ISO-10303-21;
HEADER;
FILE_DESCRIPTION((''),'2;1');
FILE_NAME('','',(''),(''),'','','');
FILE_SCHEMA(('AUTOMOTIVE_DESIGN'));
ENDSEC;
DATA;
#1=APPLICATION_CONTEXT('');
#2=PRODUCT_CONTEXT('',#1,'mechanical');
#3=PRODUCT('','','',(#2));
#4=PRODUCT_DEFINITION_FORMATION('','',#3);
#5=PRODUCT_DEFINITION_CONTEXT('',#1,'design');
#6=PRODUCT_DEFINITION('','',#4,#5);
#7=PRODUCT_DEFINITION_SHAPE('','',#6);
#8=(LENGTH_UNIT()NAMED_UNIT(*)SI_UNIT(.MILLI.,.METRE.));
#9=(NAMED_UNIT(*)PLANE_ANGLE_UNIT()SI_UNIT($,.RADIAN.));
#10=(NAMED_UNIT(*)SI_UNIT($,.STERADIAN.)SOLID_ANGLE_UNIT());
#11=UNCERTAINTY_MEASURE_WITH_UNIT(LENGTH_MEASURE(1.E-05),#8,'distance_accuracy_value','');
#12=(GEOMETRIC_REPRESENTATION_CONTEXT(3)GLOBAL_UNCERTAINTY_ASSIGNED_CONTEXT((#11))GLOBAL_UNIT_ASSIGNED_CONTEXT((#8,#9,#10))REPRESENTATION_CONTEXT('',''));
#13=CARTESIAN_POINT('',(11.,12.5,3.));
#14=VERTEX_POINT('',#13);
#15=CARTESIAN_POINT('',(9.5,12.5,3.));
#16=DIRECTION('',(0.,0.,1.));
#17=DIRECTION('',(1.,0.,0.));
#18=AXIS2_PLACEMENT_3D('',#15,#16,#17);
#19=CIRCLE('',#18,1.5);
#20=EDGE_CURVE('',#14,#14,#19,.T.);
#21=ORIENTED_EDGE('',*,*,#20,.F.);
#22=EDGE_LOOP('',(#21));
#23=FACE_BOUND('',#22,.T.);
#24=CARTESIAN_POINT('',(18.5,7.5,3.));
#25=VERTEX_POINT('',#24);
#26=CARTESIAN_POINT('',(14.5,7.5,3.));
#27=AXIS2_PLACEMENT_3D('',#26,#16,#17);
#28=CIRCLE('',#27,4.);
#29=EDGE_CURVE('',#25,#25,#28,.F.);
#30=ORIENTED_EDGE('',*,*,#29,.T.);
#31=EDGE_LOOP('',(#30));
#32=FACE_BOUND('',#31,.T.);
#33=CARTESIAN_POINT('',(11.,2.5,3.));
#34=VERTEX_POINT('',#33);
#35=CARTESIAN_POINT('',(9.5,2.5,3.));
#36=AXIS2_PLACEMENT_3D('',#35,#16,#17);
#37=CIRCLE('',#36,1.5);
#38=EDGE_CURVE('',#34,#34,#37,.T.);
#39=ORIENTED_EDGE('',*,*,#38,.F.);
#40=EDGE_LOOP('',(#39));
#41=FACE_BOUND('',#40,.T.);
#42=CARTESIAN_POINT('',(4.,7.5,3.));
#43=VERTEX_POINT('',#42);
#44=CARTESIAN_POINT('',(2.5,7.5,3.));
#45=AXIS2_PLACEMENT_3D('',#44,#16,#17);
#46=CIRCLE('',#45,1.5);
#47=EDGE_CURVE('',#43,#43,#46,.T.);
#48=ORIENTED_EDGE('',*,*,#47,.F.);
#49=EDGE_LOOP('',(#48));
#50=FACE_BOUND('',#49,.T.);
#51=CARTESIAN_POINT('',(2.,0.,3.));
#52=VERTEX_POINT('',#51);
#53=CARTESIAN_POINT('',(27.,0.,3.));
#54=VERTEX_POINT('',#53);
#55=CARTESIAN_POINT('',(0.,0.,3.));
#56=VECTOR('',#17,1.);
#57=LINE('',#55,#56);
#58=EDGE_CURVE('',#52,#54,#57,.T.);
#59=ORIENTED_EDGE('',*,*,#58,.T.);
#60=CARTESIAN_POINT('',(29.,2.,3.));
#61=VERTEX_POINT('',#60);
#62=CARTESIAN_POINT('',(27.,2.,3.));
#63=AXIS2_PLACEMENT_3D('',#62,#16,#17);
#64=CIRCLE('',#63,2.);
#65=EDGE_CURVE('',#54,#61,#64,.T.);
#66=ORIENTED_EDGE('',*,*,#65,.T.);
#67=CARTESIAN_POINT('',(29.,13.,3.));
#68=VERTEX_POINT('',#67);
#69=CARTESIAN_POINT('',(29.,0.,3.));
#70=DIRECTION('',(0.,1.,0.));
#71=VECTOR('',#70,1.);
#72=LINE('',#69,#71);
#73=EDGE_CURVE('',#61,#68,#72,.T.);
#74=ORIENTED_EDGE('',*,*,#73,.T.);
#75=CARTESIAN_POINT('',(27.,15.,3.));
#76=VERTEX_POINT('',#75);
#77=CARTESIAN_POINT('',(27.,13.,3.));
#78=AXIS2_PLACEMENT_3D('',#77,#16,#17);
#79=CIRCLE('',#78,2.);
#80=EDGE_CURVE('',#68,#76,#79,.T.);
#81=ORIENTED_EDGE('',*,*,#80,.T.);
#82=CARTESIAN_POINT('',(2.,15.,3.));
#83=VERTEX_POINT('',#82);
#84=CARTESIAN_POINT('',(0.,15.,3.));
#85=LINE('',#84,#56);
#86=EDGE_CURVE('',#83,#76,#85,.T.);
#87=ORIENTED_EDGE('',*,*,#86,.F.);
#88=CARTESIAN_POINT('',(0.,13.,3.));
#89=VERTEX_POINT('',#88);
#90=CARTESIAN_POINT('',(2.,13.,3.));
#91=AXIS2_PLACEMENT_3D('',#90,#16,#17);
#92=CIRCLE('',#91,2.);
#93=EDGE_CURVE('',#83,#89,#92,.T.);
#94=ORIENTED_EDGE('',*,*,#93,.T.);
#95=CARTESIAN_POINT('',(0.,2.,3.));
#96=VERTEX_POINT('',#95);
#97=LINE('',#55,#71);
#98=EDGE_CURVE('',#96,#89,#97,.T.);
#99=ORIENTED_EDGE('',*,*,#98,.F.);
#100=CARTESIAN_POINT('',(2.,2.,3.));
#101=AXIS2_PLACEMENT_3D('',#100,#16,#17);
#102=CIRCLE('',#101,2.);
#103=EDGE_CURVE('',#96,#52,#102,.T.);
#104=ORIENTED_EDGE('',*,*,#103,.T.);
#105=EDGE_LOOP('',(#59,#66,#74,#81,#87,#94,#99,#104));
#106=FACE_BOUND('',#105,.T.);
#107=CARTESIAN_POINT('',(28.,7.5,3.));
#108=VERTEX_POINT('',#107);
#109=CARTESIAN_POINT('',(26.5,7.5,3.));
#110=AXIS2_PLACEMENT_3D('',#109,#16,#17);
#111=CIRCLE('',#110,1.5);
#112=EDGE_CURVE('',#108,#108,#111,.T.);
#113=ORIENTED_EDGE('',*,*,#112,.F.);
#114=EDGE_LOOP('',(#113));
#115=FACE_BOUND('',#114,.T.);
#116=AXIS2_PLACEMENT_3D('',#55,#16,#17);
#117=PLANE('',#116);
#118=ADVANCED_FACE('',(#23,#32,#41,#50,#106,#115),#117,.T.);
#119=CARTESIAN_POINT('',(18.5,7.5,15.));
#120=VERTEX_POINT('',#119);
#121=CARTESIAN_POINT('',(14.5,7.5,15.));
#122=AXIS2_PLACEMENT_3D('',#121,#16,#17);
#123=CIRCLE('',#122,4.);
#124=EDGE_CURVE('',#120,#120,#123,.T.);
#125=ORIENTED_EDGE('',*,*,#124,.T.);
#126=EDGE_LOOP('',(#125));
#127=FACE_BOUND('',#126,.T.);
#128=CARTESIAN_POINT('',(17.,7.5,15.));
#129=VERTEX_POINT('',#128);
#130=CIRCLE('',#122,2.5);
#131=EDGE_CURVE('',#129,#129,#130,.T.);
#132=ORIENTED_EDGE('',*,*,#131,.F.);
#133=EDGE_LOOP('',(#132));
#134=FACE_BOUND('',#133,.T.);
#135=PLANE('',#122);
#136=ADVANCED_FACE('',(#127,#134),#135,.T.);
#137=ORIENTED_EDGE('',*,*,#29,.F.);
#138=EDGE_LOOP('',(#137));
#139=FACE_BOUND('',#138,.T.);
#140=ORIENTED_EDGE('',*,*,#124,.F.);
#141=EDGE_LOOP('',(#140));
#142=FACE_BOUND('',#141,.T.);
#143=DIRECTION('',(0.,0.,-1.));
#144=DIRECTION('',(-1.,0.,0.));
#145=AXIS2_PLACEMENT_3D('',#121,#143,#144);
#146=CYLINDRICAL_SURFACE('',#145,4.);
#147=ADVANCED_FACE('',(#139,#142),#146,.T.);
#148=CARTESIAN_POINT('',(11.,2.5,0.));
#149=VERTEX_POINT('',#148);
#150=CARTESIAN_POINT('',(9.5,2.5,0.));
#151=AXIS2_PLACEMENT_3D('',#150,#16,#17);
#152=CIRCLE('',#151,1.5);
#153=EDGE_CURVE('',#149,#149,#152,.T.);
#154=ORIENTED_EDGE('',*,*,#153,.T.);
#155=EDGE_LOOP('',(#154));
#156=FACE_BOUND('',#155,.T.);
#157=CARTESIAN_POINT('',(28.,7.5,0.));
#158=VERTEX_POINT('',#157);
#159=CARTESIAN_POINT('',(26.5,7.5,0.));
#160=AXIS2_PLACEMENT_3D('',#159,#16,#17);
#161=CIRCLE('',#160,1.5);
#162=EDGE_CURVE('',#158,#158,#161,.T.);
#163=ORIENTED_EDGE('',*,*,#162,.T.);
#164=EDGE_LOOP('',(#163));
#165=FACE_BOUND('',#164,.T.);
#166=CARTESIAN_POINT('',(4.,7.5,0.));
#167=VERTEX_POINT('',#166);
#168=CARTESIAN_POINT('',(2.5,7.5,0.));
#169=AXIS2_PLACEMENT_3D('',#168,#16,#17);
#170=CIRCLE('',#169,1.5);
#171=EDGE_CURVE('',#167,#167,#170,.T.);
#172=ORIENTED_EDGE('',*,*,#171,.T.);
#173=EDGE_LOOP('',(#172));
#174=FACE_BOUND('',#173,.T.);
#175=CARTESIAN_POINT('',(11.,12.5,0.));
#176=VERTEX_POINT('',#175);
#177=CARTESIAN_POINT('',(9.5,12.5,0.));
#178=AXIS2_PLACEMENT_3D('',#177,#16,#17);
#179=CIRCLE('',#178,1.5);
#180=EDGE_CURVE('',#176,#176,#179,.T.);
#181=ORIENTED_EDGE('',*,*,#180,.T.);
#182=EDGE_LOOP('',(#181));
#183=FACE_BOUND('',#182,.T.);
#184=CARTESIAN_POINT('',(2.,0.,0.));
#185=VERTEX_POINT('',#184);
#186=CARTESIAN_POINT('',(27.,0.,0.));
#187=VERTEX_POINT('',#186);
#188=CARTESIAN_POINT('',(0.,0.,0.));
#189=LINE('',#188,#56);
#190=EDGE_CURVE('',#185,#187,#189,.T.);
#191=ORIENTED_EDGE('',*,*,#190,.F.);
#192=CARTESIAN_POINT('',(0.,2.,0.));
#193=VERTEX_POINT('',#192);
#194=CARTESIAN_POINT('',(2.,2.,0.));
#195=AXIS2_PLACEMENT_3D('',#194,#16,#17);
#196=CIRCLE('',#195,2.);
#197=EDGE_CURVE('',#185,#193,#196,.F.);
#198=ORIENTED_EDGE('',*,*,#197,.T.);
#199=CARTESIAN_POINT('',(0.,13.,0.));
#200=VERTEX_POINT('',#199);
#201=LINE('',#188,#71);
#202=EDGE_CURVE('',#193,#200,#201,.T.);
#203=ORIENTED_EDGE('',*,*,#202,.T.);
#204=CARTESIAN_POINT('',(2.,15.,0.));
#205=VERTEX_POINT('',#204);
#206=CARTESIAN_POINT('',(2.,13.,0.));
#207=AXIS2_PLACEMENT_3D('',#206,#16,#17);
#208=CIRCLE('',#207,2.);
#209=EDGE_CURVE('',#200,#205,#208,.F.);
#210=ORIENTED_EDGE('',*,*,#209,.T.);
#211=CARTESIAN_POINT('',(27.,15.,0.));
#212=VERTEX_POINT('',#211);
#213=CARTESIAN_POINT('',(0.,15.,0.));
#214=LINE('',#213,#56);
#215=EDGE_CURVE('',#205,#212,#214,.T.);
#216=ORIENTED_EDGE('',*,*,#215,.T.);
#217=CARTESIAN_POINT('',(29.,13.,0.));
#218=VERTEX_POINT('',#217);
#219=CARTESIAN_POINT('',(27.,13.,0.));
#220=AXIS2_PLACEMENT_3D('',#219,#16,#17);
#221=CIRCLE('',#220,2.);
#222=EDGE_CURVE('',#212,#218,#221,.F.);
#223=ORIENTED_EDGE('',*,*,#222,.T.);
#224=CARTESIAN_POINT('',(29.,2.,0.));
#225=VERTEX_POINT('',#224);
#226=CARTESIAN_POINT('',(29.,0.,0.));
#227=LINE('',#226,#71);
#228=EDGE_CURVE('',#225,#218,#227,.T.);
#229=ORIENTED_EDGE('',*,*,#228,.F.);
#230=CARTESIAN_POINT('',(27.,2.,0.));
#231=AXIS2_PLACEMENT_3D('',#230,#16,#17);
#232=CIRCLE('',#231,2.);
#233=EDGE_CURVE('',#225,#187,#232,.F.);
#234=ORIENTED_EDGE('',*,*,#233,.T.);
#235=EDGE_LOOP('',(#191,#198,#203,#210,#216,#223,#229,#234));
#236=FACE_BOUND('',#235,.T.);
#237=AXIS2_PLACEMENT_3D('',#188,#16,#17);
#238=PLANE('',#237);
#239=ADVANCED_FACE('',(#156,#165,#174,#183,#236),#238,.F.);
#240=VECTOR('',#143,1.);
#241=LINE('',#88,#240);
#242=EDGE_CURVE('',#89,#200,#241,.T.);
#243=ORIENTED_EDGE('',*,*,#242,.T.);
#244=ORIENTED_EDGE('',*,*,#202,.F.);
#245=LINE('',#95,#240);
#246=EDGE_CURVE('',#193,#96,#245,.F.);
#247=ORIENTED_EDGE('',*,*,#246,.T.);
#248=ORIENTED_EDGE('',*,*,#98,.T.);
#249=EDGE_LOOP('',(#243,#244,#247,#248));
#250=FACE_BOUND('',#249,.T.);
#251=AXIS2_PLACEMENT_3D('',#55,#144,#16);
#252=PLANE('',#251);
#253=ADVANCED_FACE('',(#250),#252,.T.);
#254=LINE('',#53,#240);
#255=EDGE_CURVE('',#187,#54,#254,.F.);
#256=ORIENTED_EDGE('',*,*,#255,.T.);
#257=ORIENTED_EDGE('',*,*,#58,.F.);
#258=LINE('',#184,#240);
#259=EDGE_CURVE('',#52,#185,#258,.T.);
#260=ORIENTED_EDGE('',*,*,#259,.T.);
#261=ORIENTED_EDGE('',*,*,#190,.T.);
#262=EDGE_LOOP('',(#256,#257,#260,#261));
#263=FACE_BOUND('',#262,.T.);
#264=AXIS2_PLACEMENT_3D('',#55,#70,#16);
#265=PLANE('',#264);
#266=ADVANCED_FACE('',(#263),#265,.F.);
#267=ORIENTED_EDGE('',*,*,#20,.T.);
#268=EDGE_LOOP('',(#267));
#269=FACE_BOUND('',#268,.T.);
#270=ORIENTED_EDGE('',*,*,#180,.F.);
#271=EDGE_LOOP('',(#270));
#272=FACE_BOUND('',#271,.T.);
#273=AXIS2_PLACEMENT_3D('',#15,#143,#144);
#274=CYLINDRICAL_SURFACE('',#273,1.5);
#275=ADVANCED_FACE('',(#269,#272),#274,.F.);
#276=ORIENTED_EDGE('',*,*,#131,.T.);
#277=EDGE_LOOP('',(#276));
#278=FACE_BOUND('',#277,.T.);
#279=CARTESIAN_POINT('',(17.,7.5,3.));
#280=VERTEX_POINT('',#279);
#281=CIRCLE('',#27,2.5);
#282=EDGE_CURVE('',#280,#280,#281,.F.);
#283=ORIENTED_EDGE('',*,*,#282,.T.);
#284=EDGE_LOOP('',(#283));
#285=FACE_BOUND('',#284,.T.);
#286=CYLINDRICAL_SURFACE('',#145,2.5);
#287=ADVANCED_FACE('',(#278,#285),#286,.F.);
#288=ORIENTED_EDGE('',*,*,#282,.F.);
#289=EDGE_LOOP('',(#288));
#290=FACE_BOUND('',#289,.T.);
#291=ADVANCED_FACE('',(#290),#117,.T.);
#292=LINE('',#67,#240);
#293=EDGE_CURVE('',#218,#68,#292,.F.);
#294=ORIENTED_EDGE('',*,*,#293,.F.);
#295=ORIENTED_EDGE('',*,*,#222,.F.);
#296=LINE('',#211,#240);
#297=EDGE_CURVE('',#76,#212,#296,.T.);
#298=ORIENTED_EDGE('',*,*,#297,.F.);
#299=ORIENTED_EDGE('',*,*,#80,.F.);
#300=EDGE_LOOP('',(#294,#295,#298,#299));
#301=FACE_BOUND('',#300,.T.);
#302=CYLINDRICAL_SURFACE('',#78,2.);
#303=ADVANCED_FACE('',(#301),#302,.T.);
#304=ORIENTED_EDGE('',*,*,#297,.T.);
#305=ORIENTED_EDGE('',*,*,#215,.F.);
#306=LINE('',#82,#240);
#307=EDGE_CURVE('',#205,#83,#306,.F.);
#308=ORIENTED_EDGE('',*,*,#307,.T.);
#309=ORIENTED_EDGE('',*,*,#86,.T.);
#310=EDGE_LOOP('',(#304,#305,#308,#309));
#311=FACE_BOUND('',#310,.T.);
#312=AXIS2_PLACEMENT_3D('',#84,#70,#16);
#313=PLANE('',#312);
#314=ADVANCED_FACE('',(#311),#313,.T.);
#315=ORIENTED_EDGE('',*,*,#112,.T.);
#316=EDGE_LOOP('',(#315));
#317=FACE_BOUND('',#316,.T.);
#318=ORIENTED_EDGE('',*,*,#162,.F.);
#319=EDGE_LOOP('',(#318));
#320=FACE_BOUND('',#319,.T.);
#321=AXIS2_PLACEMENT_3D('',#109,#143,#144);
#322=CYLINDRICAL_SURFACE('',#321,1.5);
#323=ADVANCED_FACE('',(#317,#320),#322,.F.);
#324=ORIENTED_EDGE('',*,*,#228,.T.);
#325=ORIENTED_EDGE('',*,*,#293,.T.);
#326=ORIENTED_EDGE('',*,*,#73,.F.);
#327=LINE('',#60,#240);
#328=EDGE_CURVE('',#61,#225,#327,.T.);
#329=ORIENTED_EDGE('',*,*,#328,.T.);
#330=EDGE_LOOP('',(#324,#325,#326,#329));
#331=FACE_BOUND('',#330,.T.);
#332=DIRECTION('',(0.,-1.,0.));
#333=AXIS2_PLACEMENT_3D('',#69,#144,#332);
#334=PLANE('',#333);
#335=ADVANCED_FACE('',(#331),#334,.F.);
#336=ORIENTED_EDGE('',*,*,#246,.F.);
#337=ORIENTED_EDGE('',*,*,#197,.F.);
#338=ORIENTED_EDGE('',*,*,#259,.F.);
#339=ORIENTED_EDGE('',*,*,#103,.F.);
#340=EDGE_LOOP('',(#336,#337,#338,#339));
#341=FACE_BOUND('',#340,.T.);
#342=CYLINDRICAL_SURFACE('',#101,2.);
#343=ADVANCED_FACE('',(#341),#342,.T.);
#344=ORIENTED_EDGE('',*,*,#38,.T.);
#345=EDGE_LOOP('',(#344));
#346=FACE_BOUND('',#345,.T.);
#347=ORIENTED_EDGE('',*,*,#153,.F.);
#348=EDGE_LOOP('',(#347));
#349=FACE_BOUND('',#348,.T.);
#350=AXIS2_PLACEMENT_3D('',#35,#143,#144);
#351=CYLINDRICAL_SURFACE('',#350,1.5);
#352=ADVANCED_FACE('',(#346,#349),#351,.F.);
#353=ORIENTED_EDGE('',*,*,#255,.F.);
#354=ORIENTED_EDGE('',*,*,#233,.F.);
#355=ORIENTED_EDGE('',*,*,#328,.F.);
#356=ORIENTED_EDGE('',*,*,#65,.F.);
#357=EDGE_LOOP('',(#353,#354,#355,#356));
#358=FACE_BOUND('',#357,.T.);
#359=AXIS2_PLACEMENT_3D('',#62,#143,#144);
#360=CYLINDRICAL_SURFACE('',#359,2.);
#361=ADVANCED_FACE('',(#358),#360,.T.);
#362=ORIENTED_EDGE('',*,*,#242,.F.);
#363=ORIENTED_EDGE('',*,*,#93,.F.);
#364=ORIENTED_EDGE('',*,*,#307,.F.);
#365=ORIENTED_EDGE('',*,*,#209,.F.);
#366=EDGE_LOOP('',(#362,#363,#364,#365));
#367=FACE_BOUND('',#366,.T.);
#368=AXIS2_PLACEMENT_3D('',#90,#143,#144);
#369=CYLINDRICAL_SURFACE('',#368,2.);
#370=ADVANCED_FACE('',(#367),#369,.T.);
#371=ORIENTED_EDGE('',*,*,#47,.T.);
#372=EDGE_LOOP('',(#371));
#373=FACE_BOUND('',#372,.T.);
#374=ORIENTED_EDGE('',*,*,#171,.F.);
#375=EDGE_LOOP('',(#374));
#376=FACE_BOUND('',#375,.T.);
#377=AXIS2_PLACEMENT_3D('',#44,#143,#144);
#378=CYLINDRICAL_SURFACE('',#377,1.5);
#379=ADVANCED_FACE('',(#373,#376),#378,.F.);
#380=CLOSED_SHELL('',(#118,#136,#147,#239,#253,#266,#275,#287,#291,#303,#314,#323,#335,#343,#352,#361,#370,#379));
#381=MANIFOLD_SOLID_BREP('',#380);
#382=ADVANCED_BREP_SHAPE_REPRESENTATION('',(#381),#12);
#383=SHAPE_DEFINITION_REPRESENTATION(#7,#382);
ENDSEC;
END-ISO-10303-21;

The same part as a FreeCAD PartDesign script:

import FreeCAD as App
import Part
import Sketcher
Q = App.Units.Quantity


def edges_at(feature, points):
    """Names of the edges that pass closest to the given points."""
    edges = feature.Shape.Edges
    near = lambda p: min(range(len(edges)), key=lambda i: edges[i].distToShape(Part.Vertex(*p))[0])
    return sorted({f"Edge{near(p) + 1}" for p in points})


def add_polygon(sketch, points):
    """Adds a closed chain of lines whose ends are joined by coincident constraints."""
    first, n = sketch.GeometryCount, len(points)
    for a, b in zip(points, points[1:] + points[:1]):
        sketch.addGeometry(Part.LineSegment(App.Vector(*a, 0), App.Vector(*b, 0)), False)
    for i in range(n):
        sketch.addConstraint(Sketcher.Constraint("Coincident", first + i, 2, first + (i + 1) % n, 1))

doc = App.newDocument("Part")
body = doc.addObject("PartDesign::Body", "Body")

sketch1 = doc.addObject("Sketcher::SketchObject", "Sketch")
body.addObject(sketch1)
sketch1.AttachmentSupport = (doc.XY_Plane, [""])
sketch1.MapMode = "FlatFace"
add_polygon(sketch1, [(0, 15), (0, 0), (29, 0), (29, 15)])
sketch1.addGeometry(Part.Circle(App.Vector(9.5, 2.5, 0), App.Vector(0, 0, 1), 1.5), False)
sketch1.addGeometry(Part.Circle(App.Vector(2.5, 7.5, 0), App.Vector(0, 0, 1), 1.5), False)
sketch1.addGeometry(Part.Circle(App.Vector(9.5, 12.5, 0), App.Vector(0, 0, 1), 1.5), False)
sketch1.addGeometry(Part.Circle(App.Vector(26.5, 7.5, 0), App.Vector(0, 0, 1), 1.5), False)
sketch1.addConstraint([
    Sketcher.Constraint("Vertical", 0),
    Sketcher.Constraint("Horizontal", 1),
    Sketcher.Constraint("Vertical", 2),
    Sketcher.Constraint("Horizontal", 3),
    Sketcher.Constraint("Coincident", 0, 2, -1, 1),
    Sketcher.Constraint("Equal", 4, 5),
    Sketcher.Constraint("Equal", 5, 6),
    Sketcher.Constraint("Equal", 6, 7),
    Sketcher.Constraint("Horizontal", 5, 3, 7, 3),
    Sketcher.Constraint("Vertical", 4, 3, 6, 3),
    Sketcher.Constraint("Diameter", 4, Q("3 mm")),
    Sketcher.Constraint("DistanceX", 1, 1, 1, 2, Q("29 mm")),
    Sketcher.Constraint("DistanceY", 0, 2, 0, 1, Q("15 mm")),
    Sketcher.Constraint("DistanceX", 5, 3, 4, 3, Q("7 mm")),
    Sketcher.Constraint("DistanceY", 4, 3, 5, 3, Q("5 mm")),
    Sketcher.Constraint("DistanceY", 5, 3, 6, 3, Q("5 mm")),
    Sketcher.Constraint("DistanceX", 4, 3, 7, 3, Q("17 mm")),
    Sketcher.Constraint("DistanceX", -1, 1, 4, 3, Q("9.5 mm")),
    Sketcher.Constraint("DistanceY", -1, 1, 4, 3, Q("2.5 mm")),
])
pad1 = doc.addObject("PartDesign::Pad", "Pad")
body.addObject(pad1)
pad1.Profile = sketch1
pad1.Length = 3

sketch2 = doc.addObject("Sketcher::SketchObject", "Sketch001")
body.addObject(sketch2)
sketch2.AttachmentSupport = (doc.XY_Plane, [""])
sketch2.MapMode = "FlatFace"
sketch2.addGeometry([
    Part.Circle(App.Vector(14.5, 7.5, 0), App.Vector(0, 0, 1), 4),
    Part.Circle(App.Vector(14.5, 7.5, 0), App.Vector(0, 0, 1), 2.5),
], False)
sketch2.addConstraint([
    Sketcher.Constraint("Coincident", 1, 3, 0, 3),
    Sketcher.Constraint("Diameter", 0, Q("8 mm")),
    Sketcher.Constraint("Diameter", 1, Q("5 mm")),
    Sketcher.Constraint("DistanceX", -1, 1, 0, 3, Q("14.5 mm")),
    Sketcher.Constraint("DistanceY", -1, 1, 0, 3, Q("7.5 mm")),
])
pad2 = doc.addObject("PartDesign::Pad", "Pad001")
body.addObject(pad2)
pad2.Profile = sketch2
pad2.Length = 15
doc.recompute()

fillet = doc.addObject("PartDesign::Fillet", "Fillet")
body.addObject(fillet)
fillet.Base = (pad2, edges_at(pad2, [
    (0, 0, 1.5),
    (0, 15, 1.5),
    (29, 15, 1.5),
    (29, 0, 1.5),
]))
fillet.Radius = 2

doc.recompute()
